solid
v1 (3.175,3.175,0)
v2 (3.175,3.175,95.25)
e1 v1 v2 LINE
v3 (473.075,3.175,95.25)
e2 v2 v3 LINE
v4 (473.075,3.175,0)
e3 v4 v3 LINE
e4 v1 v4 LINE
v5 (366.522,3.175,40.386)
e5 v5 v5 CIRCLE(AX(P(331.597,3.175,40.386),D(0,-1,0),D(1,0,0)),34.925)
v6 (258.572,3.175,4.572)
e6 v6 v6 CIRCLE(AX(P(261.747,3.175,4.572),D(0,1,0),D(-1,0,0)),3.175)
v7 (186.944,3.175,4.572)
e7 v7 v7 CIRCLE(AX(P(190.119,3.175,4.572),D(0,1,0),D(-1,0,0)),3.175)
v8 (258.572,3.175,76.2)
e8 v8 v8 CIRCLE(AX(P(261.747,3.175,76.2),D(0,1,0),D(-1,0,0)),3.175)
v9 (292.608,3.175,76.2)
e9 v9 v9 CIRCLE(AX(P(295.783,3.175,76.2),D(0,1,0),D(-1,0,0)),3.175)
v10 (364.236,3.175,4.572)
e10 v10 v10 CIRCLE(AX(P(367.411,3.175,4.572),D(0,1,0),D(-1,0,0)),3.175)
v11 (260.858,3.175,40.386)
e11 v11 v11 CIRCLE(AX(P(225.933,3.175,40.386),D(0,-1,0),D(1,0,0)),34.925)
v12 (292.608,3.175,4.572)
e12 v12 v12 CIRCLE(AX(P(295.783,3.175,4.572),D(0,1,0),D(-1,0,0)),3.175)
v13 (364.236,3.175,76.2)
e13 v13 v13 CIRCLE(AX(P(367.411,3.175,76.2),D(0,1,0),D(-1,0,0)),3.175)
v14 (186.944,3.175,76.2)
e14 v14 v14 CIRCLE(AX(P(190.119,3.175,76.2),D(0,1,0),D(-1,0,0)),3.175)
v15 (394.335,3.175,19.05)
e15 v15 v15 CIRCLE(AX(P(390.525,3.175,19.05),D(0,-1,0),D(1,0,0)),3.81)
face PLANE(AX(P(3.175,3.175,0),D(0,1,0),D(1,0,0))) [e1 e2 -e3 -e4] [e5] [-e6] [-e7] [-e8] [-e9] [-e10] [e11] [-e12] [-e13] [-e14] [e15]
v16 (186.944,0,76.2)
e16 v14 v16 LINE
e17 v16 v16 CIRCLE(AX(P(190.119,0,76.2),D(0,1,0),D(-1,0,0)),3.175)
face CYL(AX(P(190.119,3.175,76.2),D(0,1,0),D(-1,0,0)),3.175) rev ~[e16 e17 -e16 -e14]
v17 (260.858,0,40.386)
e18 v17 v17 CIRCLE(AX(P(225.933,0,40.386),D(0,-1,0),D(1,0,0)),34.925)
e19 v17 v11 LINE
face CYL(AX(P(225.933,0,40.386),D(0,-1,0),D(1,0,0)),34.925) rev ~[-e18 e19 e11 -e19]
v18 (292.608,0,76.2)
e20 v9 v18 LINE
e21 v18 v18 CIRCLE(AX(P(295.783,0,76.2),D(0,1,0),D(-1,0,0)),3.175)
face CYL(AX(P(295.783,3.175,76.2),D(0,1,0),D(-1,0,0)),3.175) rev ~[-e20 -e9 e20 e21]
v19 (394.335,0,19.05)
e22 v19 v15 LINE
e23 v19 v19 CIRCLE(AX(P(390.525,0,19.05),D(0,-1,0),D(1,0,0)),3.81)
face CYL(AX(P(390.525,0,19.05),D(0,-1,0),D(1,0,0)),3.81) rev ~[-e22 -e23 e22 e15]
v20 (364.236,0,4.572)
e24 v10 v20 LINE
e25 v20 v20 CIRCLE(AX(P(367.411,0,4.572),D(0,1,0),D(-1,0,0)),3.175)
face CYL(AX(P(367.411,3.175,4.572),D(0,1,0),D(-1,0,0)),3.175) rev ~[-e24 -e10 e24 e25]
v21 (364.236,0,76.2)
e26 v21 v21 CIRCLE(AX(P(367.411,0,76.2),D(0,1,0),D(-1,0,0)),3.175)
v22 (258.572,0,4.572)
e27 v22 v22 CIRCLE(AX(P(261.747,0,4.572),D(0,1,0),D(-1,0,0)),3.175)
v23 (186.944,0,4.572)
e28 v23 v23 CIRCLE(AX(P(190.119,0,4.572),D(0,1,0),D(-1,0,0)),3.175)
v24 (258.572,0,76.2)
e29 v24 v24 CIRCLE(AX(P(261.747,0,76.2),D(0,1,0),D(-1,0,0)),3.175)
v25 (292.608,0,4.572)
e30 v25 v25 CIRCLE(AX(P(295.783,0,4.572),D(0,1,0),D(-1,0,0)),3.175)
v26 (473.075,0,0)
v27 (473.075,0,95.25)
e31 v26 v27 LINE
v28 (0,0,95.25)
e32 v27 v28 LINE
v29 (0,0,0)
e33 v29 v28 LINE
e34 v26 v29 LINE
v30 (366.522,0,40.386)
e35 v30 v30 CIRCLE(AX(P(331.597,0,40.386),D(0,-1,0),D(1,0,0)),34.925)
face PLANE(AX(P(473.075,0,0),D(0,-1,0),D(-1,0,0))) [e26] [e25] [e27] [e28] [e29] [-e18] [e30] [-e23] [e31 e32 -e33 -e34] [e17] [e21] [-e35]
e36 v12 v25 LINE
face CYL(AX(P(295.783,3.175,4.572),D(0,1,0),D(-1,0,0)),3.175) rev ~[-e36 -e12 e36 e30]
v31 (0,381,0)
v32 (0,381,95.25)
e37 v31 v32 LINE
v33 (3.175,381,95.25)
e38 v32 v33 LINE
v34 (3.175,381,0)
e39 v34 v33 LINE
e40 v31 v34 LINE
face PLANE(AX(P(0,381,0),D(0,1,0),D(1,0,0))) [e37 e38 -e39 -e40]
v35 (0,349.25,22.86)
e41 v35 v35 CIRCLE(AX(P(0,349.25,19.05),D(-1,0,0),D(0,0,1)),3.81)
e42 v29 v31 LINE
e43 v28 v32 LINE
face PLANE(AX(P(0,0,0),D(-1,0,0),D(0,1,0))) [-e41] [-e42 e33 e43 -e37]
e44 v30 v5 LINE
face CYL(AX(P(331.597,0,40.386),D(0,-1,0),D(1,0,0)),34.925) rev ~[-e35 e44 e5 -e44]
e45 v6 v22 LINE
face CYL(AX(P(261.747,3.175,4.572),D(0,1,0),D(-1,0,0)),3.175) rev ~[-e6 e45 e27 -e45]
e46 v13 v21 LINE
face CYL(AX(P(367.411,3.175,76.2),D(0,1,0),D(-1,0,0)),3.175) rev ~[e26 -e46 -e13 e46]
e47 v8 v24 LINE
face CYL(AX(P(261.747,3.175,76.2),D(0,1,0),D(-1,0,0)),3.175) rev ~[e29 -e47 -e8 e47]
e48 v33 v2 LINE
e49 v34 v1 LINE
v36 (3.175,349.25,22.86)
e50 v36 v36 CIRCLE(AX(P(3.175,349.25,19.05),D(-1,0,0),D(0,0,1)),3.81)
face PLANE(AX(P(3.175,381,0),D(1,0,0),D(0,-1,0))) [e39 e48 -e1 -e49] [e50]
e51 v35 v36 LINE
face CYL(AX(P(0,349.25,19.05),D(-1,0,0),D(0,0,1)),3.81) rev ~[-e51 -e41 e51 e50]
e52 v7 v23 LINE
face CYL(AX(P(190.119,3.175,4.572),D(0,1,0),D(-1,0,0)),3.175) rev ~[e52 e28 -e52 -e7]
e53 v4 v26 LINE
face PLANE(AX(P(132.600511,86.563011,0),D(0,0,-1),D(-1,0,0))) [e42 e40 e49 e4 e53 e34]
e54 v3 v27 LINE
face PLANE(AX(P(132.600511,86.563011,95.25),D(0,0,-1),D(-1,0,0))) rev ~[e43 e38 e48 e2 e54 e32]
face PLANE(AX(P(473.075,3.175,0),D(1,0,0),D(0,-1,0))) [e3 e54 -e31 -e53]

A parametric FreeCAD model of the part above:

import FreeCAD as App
import Part
import Sketcher
Q = App.Units.Quantity

doc = App.newDocument("Part")
params = doc.addObject("Spreadsheet::Sheet", "Params")
for row, (alias, value) in enumerate([
    ("sketch1_height", "15 in"),
    ("sketch1_width", "18.5 in"),
    ("sketch1_width2", "18.625 in"),
    ("pad1_length", "3.75 in"),
    ("sketch2_diameter", "0.25 in"),
    ("pocket1_length", "6 in"),
    ("sketch3_diameter", "0.3 in"),
    ("sketch3_diameter2", "2.75 in"),
    ("pocket2_length", "15 in"),
    ("sketch4_diameter", "0.3 in"),
    ("pocket3_length", "0.5 in"),
], start=1):
    params.set(f"A{row}", alias)
    params.set(f"B{row}", "=" + value)
    params.setAlias(f"B{row}", alias)

body = doc.addObject("PartDesign::Body", "Body")

sketch1 = body.newObject("Sketcher::SketchObject", "Sketch")
sketch1.AttachmentSupport = (doc.getObject("XY_Plane"), [""])
sketch1.MapMode = "FlatFace"
sketch1.addGeometry([
    Part.LineSegment(App.Vector(0, 381, 0), App.Vector(0, 0, 0)),
    Part.LineSegment(App.Vector(0, 0, 0), App.Vector(473.1, 0, 0)),
    Part.LineSegment(App.Vector(473.1, 0, 0), App.Vector(473.1, 3.2, 0)),
    Part.LineSegment(App.Vector(473.1, 3.2, 0), App.Vector(3.2, 3.2, 0)),
    Part.LineSegment(App.Vector(3.2, 3.2, 0), App.Vector(3.2, 381, 0)),
    Part.LineSegment(App.Vector(3.2, 381, 0), App.Vector(0, 381, 0)),
], False)
sketch1.addConstraint([
    Sketcher.Constraint("Coincident", 0, 2, 1, 1),
    Sketcher.Constraint("Coincident", 1, 2, 2, 1),
    Sketcher.Constraint("Coincident", 2, 2, 3, 1),
    Sketcher.Constraint("Coincident", 3, 2, 4, 1),
    Sketcher.Constraint("Coincident", 4, 2, 5, 1),
    Sketcher.Constraint("Coincident", 5, 2, 0, 1),
    Sketcher.Constraint("Vertical", 0),
    Sketcher.Constraint("Horizontal", 1),
    Sketcher.Constraint("Vertical", 2),
    Sketcher.Constraint("Horizontal", 3),
    Sketcher.Constraint("Vertical", 4),
    Sketcher.Constraint("Horizontal", 5),
    Sketcher.Constraint("Coincident", 0, 2, -1, 1),
    Sketcher.Constraint("Equal", 5, 2),
    Sketcher.Constraint("DistanceY", 0, 2, 0, 1, Q("15 in")),
    Sketcher.Constraint("DistanceX", 3, 2, 3, 1, Q("18.5 in")),
    Sketcher.Constraint("DistanceX", 1, 1, 1, 2, Q("18.625 in")),
])
sketch1.setExpression("Constraints[14]", "Params.sketch1_height")
sketch1.setExpression("Constraints[15]", "Params.sketch1_width")
sketch1.setExpression("Constraints[16]", "Params.sketch1_width2")
pad1 = body.newObject("PartDesign::Pad", "Pad")
pad1.Profile = sketch1
pad1.setExpression("Length", "Params.pad1_length")

sketch2 = body.newObject("Sketcher::SketchObject", "Sketch001")
sketch2.AttachmentSupport = (doc.getObject("XZ_Plane"), [""])
sketch2.MapMode = "FlatFace"
sketch2.AttachmentOffset = App.Placement(App.Vector(0, 0, -0.125 * 25.4), App.Rotation())
sketch2.addGeometry([
    Part.Circle(App.Vector(190.1, 4.6, 0), App.Vector(0, 0, 1), 3.2),
    Part.Circle(App.Vector(190.1, 76.2, 0), App.Vector(0, 0, 1), 3.2),
    Part.Circle(App.Vector(261.7, 4.6, 0), App.Vector(0, 0, 1), 3.2),
    Part.Circle(App.Vector(261.7, 76.2, 0), App.Vector(0, 0, 1), 3.2),
    Part.Circle(App.Vector(295.8, 76.2, 0), App.Vector(0, 0, 1), 3.2),
    Part.Circle(App.Vector(295.8, 4.6, 0), App.Vector(0, 0, 1), 3.2),
    Part.Circle(App.Vector(367.4, 76.2, 0), App.Vector(0, 0, 1), 3.2),
    Part.Circle(App.Vector(367.4, 4.6, 0), App.Vector(0, 0, 1), 3.2),
], False)
sketch2.addConstraint([
    Sketcher.Constraint("Equal", 0, 1),
    Sketcher.Constraint("Equal", 1, 2),
    Sketcher.Constraint("Equal", 2, 3),
    Sketcher.Constraint("Equal", 3, 4),
    Sketcher.Constraint("Equal", 4, 5),
    Sketcher.Constraint("Equal", 5, 6),
    Sketcher.Constraint("Equal", 6, 7),
    Sketcher.Constraint("Horizontal", 0, 3, 2, 3),
    Sketcher.Constraint("Horizontal", 1, 3, 3, 3),
    Sketcher.Constraint("Horizontal", 3, 3, 4, 3),
    Sketcher.Constraint("Horizontal", 2, 3, 5, 3),
    Sketcher.Constraint("Horizontal", 4, 3, 6, 3),
    Sketcher.Constraint("Horizontal", 5, 3, 7, 3),
    Sketcher.Constraint("Vertical", 0, 3, 1, 3),
    Sketcher.Constraint("Vertical", 2, 3, 3, 3),
    Sketcher.Constraint("Vertical", 4, 3, 5, 3),
    Sketcher.Constraint("Vertical", 6, 3, 7, 3),
    Sketcher.Constraint("Diameter", 0, Q("0.25 in")),
    Sketcher.Constraint("DistanceY", -1, 1, 1, 3, Q("3 in")),
    Sketcher.Constraint("DistanceY", -1, 1, 0, 3, Q("0.18 in")),
    Sketcher.Constraint("DistanceX", 0, 3, 2, 3, Q("2.82 in")),
    Sketcher.Constraint("DistanceX", 3, 3, 4, 3, Q("1.34 in")),
    Sketcher.Constraint("DistanceX", 4, 3, 6, 3, Q("2.82 in")),
    Sketcher.Constraint("DistanceX", -1, 1, 0, 3, Q("7.485 in")),
])
sketch2.setExpression("Constraints[17]", "Params.sketch2_diameter")
pocket1 = body.newObject("PartDesign::Pocket", "Pocket")
pocket1.Profile = sketch2
pocket1.setExpression("Length", "Params.pocket1_length")
pocket1.Reversed = True

sketch3 = body.newObject("Sketcher::SketchObject", "Sketch002")
sketch3.AttachmentSupport = (doc.getObject("XZ_Plane"), [""])
sketch3.MapMode = "FlatFace"
sketch3.addGeometry([
    Part.Circle(App.Vector(225.9, 40.4, 0), App.Vector(0, 0, 1), 34.9),
    Part.Circle(App.Vector(331.6, 40.4, 0), App.Vector(0, 0, 1), 34.9),
    Part.Circle(App.Vector(390.5, 19.1, 0), App.Vector(0, 0, 1), 3.8),
], False)
sketch3.addConstraint([
    Sketcher.Constraint("Equal", 0, 1),
    Sketcher.Constraint("Horizontal", 0, 3, 1, 3),
    Sketcher.Constraint("Diameter", 2, Q("0.3 in")),
    Sketcher.Constraint("Diameter", 0, Q("2.75 in")),
    Sketcher.Constraint("DistanceY", -1, 1, 0, 3, Q("1.59 in")),
    Sketcher.Constraint("DistanceY", -1, 1, 2, 3, Q("0.75 in")),
    Sketcher.Constraint("DistanceX", 0, 3, 1, 3, Q("4.16 in")),
    Sketcher.Constraint("DistanceX", 1, 3, 2, 3, Q("2.32 in")),
    Sketcher.Constraint("DistanceX", -1, 1, 0, 3, Q("8.895 in")),
])
sketch3.setExpression("Constraints[2]", "Params.sketch3_diameter")
sketch3.setExpression("Constraints[3]", "Params.sketch3_diameter2")
pocket2 = body.newObject("PartDesign::Pocket", "Pocket001")
pocket2.Profile = sketch3
pocket2.setExpression("Length", "Params.pocket2_length")

sketch4 = body.newObject("Sketcher::SketchObject", "Sketch003")
sketch4.AttachmentSupport = (doc.getObject("YZ_Plane"), [""])
sketch4.MapMode = "FlatFace"
sketch4.addGeometry(Part.Circle(App.Vector(349.2, 19.1, 0), App.Vector(0, 0, 1), 3.8), False)
sketch4.addConstraint([
    Sketcher.Constraint("Diameter", 0, Q("0.3 in")),
    Sketcher.Constraint("DistanceX", -1, 1, 0, 3, Q("13.75 in")),
    Sketcher.Constraint("DistanceY", -1, 1, 0, 3, Q("0.75 in")),
])
sketch4.setExpression("Constraints[0]", "Params.sketch4_diameter")
pocket3 = body.newObject("PartDesign::Pocket", "Pocket002")
pocket3.Profile = sketch4
pocket3.setExpression("Length", "Params.pocket3_length")
pocket3.Reversed = True

doc.recompute()
